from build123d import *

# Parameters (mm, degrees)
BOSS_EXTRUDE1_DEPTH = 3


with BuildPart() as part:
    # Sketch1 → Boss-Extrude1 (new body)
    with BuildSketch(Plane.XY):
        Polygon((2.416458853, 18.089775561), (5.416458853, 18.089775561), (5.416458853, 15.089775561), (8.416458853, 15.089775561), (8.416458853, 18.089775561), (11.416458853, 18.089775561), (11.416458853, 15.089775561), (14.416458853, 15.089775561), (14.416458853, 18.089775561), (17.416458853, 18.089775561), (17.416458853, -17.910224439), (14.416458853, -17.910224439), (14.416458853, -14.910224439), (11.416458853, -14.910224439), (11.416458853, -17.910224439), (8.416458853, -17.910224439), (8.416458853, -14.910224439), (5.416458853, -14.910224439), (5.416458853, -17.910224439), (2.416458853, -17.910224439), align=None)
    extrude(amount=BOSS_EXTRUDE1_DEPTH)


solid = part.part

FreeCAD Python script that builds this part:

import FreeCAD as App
import Part
import Sketcher
from FreeCAD import Vector


def add_polygon(sketch, points):
    """Adds a closed chain of lines whose ends are joined by coincident constraints."""
    first, n = sketch.GeometryCount, len(points)
    for a, b in zip(points, points[1:] + points[:1]):
        sketch.addGeometry(Part.LineSegment(App.Vector(*a, 0), App.Vector(*b, 0)), False)
    for i in range(n):
        sketch.addConstraint(Sketcher.Constraint("Coincident", first + i, 2, first + (i + 1) % n, 1))

doc = App.newDocument("Part")
body = doc.addObject("PartDesign::Body", "Body")

# Sketch on XY plane
sketch1 = body.newObject("Sketcher::SketchObject", "Sketch")
sketch1.AttachmentSupport = (doc.getObject("XY_Plane"), [""])
sketch1.MapMode = "FlatFace"
add_polygon(sketch1, [(5.4, 18.1), (2.4, 18.1), (2.4, -17.9), (5.4, -17.9), (5.4, -14.9), (8.4, -14.9), (8.4, -17.9), (11.4, -17.9), (11.4, -14.9), (14.4, -14.9), (14.4, -17.9), (17.4, -17.9), (17.4, 18.1), (14.4, 18.1), (14.4, 15.1), (11.4, 15.1), (11.4, 18.1), (8.4, 18.1), (8.4, 15.1), (5.4, 15.1)])  # lines 0-19
sketch1.addConstraint([
    Sketcher.Constraint("Horizontal", 0),
    Sketcher.Constraint("Vertical", 1),
    Sketcher.Constraint("Horizontal", 2),
    Sketcher.Constraint("Vertical", 3),
    Sketcher.Constraint("Horizontal", 4),
    Sketcher.Constraint("Vertical", 5),
    Sketcher.Constraint("Horizontal", 6),
    Sketcher.Constraint("Vertical", 7),
    Sketcher.Constraint("Horizontal", 8),
    Sketcher.Constraint("Vertical", 9),
    Sketcher.Constraint("Horizontal", 10),
    Sketcher.Constraint("Vertical", 11),
    Sketcher.Constraint("Horizontal", 12),
    Sketcher.Constraint("Vertical", 13),
    Sketcher.Constraint("Horizontal", 14),
    Sketcher.Constraint("Vertical", 15),
    Sketcher.Constraint("Horizontal", 16),
    Sketcher.Constraint("Vertical", 17),
    Sketcher.Constraint("Horizontal", 18),
    Sketcher.Constraint("Vertical", 19),
    Sketcher.Constraint("Horizontal", 2, 2, 5, 2),
    Sketcher.Constraint("Horizontal", 4, 2, 7, 2),
    Sketcher.Constraint("Horizontal", 6, 2, 9, 2),
    Sketcher.Constraint("Horizontal", 0, 2, 11, 2),
    Sketcher.Constraint("Horizontal", 12, 2, 15, 2),
    Sketcher.Constraint("Horizontal", 14, 2, 17, 2),
    Sketcher.Constraint("Vertical", 9, 2, 12, 2),
    Sketcher.Constraint("Vertical", 7, 2, 14, 2),
    Sketcher.Constraint("Vertical", 5, 2, 16, 2),
    Sketcher.Constraint("Vertical", 3, 2, 18, 2),
    Sketcher.Constraint("Equal", 2, 4),
    Sketcher.Constraint("Equal", 4, 6),
    Sketcher.Constraint("Equal", 6, 8),
    Sketcher.Constraint("Equal", 8, 10),
    Sketcher.Constraint("Equal", 18, 3),
    Sketcher.Constraint("Equal", 9, 13),
    Sketcher.Constraint("DistanceX", 0, 2, 0, 1, 3.0),
    Sketcher.Constraint("DistanceY", 1, 2, 1, 1, 36.0),
    Sketcher.Constraint("DistanceX", -1, 1, 0, 2, 2.416459),
    Sketcher.Constraint("DistanceY", -1, 1, 0, 2, 18.089776),
])
pad1 = body.newObject("PartDesign::Pad", "Pad")
pad1.Profile = sketch1
pad1.Length = 3

doc.recompute()
